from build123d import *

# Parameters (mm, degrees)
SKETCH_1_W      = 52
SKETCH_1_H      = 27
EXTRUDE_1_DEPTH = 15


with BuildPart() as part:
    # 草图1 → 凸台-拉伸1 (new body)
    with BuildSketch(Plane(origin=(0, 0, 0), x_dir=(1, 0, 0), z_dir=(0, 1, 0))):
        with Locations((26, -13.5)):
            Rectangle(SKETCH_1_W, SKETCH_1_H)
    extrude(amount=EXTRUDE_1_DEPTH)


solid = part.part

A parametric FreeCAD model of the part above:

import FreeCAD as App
import Part
import Sketcher

V = App.Vector

doc = App.newDocument("Part")
body = doc.addObject("PartDesign::Body", "Body")

# Sketch on XZ plane
sketch1 = body.newObject("Sketcher::SketchObject", "Sketch")
sketch1.AttachmentSupport = (doc.getObject("XZ_Plane"), [""])
sketch1.MapMode = "FlatFace"
sketch1.addGeometry(Part.LineSegment(V(0, 0, 0), V(0, 27, 0)), False)
sketch1.addGeometry(Part.LineSegment(V(0, 27, 0), V(52, 27, 0)), False)
sketch1.addGeometry(Part.LineSegment(V(52, 27, 0), V(52, 0, 0)), False)
sketch1.addGeometry(Part.LineSegment(V(52, 0, 0), V(0, 0, 0)), False)
sketch1.addConstraint(Sketcher.Constraint("Coincident", 0, 2, 1, 1))
sketch1.addConstraint(Sketcher.Constraint("Coincident", 1, 2, 2, 1))
sketch1.addConstraint(Sketcher.Constraint("Coincident", 2, 2, 3, 1))
sketch1.addConstraint(Sketcher.Constraint("Coincident", 3, 2, 0, 1))
sketch1.addConstraint(Sketcher.Constraint("Vertical", 0))
sketch1.addConstraint(Sketcher.Constraint("Horizontal", 1))
sketch1.addConstraint(Sketcher.Constraint("Vertical", 2))
sketch1.addConstraint(Sketcher.Constraint("Horizontal", 3))
sketch1.addConstraint(Sketcher.Constraint("Coincident", 3, 2, -1, 1))
sketch1.addConstraint(Sketcher.Constraint("DistanceX", 1, 1, 1, 2, 52.0))
sketch1.addConstraint(Sketcher.Constraint("DistanceY", 0, 1, 0, 2, 27.0))
pad1 = body.newObject("PartDesign::Pad", "Pad")
pad1.Profile = sketch1
pad1.Length = 15
pad1.Reversed = True

doc.recompute()
